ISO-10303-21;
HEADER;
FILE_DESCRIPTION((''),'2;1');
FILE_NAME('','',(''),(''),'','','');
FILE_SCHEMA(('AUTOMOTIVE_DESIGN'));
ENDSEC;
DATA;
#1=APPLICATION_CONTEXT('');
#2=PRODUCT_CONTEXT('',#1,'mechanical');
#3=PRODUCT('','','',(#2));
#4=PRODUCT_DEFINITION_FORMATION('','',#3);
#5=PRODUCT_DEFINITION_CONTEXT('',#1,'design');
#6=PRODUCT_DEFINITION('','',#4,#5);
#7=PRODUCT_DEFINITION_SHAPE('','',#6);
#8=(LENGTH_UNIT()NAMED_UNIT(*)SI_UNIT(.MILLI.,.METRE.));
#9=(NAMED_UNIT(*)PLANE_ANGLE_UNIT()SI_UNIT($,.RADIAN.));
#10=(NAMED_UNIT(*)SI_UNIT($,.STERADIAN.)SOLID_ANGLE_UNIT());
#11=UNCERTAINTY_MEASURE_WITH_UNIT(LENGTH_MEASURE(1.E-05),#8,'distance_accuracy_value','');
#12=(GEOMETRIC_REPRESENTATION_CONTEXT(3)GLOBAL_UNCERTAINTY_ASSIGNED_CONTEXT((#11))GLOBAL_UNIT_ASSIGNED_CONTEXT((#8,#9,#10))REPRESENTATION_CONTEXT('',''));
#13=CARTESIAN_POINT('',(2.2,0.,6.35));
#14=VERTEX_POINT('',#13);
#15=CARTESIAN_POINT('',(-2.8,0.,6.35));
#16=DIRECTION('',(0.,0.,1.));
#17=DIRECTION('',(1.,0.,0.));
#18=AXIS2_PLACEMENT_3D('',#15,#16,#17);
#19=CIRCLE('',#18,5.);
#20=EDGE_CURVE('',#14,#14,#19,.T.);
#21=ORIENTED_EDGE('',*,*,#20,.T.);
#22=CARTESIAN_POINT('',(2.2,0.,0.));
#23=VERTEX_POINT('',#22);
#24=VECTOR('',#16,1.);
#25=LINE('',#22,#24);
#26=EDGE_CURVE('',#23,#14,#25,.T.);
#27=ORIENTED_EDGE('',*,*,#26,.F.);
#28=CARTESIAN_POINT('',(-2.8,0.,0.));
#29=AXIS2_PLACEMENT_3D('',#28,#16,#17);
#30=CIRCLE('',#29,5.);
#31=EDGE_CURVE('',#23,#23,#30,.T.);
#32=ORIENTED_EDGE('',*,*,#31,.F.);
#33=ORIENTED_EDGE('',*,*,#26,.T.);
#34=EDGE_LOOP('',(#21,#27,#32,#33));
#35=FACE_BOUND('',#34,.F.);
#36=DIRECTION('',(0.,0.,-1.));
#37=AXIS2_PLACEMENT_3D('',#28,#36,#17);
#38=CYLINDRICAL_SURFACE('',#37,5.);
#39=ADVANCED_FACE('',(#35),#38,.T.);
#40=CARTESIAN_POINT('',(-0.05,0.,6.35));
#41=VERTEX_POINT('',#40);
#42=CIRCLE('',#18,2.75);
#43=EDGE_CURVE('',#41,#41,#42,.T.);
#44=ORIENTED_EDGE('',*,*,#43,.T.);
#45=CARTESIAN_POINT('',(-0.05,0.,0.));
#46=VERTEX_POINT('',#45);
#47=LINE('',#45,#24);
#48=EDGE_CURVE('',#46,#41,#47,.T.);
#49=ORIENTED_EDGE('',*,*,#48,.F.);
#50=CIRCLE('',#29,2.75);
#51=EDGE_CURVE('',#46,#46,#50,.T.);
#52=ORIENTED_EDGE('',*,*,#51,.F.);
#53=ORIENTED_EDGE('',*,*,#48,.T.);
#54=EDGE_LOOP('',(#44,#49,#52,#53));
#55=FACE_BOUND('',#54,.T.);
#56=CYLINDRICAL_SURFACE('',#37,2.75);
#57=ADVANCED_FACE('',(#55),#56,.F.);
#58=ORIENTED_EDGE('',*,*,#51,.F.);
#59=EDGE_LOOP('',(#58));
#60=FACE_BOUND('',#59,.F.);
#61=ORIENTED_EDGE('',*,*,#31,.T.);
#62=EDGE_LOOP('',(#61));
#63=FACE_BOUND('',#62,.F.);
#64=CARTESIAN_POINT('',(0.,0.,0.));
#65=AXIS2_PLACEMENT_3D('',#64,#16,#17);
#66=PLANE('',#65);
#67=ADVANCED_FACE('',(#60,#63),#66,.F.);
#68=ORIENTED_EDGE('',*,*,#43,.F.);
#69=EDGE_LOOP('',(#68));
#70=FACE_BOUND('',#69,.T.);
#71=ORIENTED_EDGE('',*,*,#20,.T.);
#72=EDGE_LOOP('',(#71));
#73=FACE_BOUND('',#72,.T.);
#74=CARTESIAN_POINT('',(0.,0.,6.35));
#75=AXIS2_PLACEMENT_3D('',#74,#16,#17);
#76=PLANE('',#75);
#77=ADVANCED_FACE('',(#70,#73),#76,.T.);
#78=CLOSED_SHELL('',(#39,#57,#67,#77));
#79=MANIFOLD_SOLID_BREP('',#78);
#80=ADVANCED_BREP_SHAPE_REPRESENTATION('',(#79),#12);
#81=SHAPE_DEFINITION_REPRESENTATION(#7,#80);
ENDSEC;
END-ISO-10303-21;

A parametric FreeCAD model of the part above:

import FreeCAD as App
import Part
import Sketcher

V = App.Vector
Q = App.Units.Quantity

doc = App.newDocument("Part")
body = doc.addObject("PartDesign::Body", "Body")

sketch1 = doc.addObject("Sketcher::SketchObject", "Sketch")
body.addObject(sketch1)
sketch1.AttachmentSupport = (doc.XY_Plane, [""])
sketch1.MapMode = "FlatFace"
sketch1.addGeometry(Part.Circle(V(-2.8, 0, 0), V(0, 0, 1), 5), False)
sketch1.addGeometry(Part.Circle(V(-2.8, 0, 0), V(0, 0, 1), 2.8), False)
sketch1.addConstraint(Sketcher.Constraint("Coincident", 1, 3, 0, 3))
sketch1.addConstraint(Sketcher.Constraint("PointOnObject", 0, 3, -1))
sketch1.addConstraint(Sketcher.Constraint("Diameter", 0, Q("10 mm")))
sketch1.addConstraint(Sketcher.Constraint("Diameter", 1, Q("5.5 mm")))
sketch1.addConstraint(Sketcher.Constraint("DistanceX", 0, 3, -1, 1, Q("2.8 mm")))
pad1 = doc.addObject("PartDesign::Pad", "Pad")
body.addObject(pad1)
pad1.Profile = sketch1
pad1.Length = 6.35

doc.recompute()
